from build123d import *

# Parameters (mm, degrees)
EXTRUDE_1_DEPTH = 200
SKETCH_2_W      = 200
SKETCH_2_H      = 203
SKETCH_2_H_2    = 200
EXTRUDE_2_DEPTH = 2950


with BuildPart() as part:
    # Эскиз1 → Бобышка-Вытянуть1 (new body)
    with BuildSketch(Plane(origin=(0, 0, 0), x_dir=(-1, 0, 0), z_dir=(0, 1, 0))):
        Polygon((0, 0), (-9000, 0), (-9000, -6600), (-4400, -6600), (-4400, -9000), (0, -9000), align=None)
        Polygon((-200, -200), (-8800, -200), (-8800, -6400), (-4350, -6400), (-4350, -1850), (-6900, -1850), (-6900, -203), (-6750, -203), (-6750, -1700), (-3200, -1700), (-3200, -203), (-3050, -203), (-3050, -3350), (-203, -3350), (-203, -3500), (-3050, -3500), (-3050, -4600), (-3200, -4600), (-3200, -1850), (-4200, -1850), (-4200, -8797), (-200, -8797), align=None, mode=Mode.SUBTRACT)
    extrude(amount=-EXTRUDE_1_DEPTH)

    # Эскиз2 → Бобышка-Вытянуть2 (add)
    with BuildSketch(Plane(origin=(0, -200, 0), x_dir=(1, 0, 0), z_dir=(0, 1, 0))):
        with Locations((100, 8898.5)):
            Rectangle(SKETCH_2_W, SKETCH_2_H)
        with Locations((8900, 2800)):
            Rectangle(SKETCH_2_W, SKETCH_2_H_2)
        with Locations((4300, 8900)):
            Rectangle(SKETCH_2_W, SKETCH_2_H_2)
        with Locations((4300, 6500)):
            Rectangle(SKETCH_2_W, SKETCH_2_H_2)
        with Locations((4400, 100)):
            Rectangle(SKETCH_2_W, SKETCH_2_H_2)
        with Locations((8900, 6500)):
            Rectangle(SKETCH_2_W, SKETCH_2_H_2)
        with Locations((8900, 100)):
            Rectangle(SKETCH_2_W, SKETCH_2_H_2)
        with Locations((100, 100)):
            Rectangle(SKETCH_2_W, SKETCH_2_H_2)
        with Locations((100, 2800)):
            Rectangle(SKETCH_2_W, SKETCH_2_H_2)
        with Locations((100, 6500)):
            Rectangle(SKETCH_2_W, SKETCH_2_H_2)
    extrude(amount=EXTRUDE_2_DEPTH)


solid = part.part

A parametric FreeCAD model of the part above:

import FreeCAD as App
import Part
import Sketcher


def add_polygon(sketch, points):
    """Adds a closed chain of lines whose ends are joined by coincident constraints."""
    first, n = sketch.GeometryCount, len(points)
    for a, b in zip(points, points[1:] + points[:1]):
        sketch.addGeometry(Part.LineSegment(App.Vector(*a, 0), App.Vector(*b, 0)), False)
    for i in range(n):
        sketch.addConstraint(Sketcher.Constraint("Coincident", first + i, 2, first + (i + 1) % n, 1))

doc = App.newDocument("Part")
params = doc.addObject("Spreadsheet::Sheet", "Params")
for row, (alias, value) in enumerate([
    ("sketch1_width", "9000 mm"),
    ("sketch1_width2", "4600 mm"),
    ("sketch1_width3", "8600 mm"),
    ("sketch1_width4", "4000 mm"),
    ("sketch1_width5", "1000 mm"),
    ("pad1_length", "200 mm"),
    ("sketch2_width", "200 mm"),
    ("sketch2_height", "203 mm"),
    ("pad2_length", "2950 mm"),
], start=1):
    params.set(f"A{row}", alias)
    params.set(f"B{row}", "=" + value)
    params.setAlias(f"B{row}", alias)

body = doc.addObject("PartDesign::Body", "Body")

# Sketch on XZ plane
sketch1 = doc.addObject("Sketcher::SketchObject", "Sketch")
body.addObject(sketch1)
sketch1.AttachmentSupport = (doc.XZ_Plane, [""])
sketch1.MapMode = "FlatFace"
add_polygon(sketch1, [(0, 0), (9000, 0), (9000, -6600), (4400, -6600), (4400, -9000), (0, -9000)])  # lines 0-5
add_polygon(sketch1, [(8800, -200), (200, -200), (200, -8797), (4200, -8797), (4200, -1850), (3200, -1850), (3200, -4600), (3050, -4600), (3050, -3500), (203, -3500), (203, -3350), (3050, -3350), (3050, -203), (3200, -203), (3200, -1700), (6750, -1700), (6750, -203), (6900, -203), (6900, -1850), (4350, -1850), (4350, -6400), (8800, -6400)])  # lines 6-27
sketch1.addConstraint(Sketcher.Constraint("Horizontal", 0))
sketch1.addConstraint(Sketcher.Constraint("Vertical", 1))
sketch1.addConstraint(Sketcher.Constraint("Horizontal", 2))
sketch1.addConstraint(Sketcher.Constraint("Vertical", 3))
sketch1.addConstraint(Sketcher.Constraint("Horizontal", 4))
sketch1.addConstraint(Sketcher.Constraint("Vertical", 5))
sketch1.addConstraint(Sketcher.Constraint("Horizontal", 6))
sketch1.addConstraint(Sketcher.Constraint("Vertical", 7))
sketch1.addConstraint(Sketcher.Constraint("Horizontal", 8))
sketch1.addConstraint(Sketcher.Constraint("Vertical", 9))
sketch1.addConstraint(Sketcher.Constraint("Horizontal", 10))
sketch1.addConstraint(Sketcher.Constraint("Vertical", 11))
sketch1.addConstraint(Sketcher.Constraint("Horizontal", 12))
sketch1.addConstraint(Sketcher.Constraint("Vertical", 13))
sketch1.addConstraint(Sketcher.Constraint("Horizontal", 14))
sketch1.addConstraint(Sketcher.Constraint("Vertical", 15))
sketch1.addConstraint(Sketcher.Constraint("Horizontal", 16))
sketch1.addConstraint(Sketcher.Constraint("Vertical", 17))
sketch1.addConstraint(Sketcher.Constraint("Horizontal", 18))
sketch1.addConstraint(Sketcher.Constraint("Vertical", 19))
sketch1.addConstraint(Sketcher.Constraint("Horizontal", 20))
sketch1.addConstraint(Sketcher.Constraint("Vertical", 21))
sketch1.addConstraint(Sketcher.Constraint("Horizontal", 22))
sketch1.addConstraint(Sketcher.Constraint("Vertical", 23))
sketch1.addConstraint(Sketcher.Constraint("Horizontal", 24))
sketch1.addConstraint(Sketcher.Constraint("Vertical", 25))
sketch1.addConstraint(Sketcher.Constraint("Horizontal", 26))
sketch1.addConstraint(Sketcher.Constraint("Vertical", 27))
sketch1.addConstraint(Sketcher.Constraint("Coincident", 5, 2, -1, 1))
sketch1.addConstraint(Sketcher.Constraint("Horizontal", 18, 2, 21, 2))
sketch1.addConstraint(Sketcher.Constraint("Horizontal", 10, 2, 23, 2))
sketch1.addConstraint(Sketcher.Constraint("Vertical", 13, 2, 16, 2))
sketch1.addConstraint(Sketcher.Constraint("Vertical", 11, 2, 18, 2))
sketch1.addConstraint(Sketcher.Constraint("Equal", 18, 22))
sketch1.addConstraint(Sketcher.Constraint("Equal", 0, 5))
sketch1.addConstraint(Sketcher.Constraint("Equal", 22, 15))
sketch1.addConstraint(Sketcher.Constraint("DistanceX", 0, 1, 0, 2, 9000.0))
sketch1.addConstraint(Sketcher.Constraint("DistanceX", 2, 2, 2, 1, 4600.0))
sketch1.addConstraint(Sketcher.Constraint("DistanceX", 6, 2, 6, 1, 8600.0))
sketch1.addConstraint(Sketcher.Constraint("DistanceX", 8, 1, 8, 2, 4000.0))
sketch1.addConstraint(Sketcher.Constraint("DistanceX", 10, 2, 10, 1, 1000.0))
sketch1.addConstraint(Sketcher.Constraint("DistanceX", 12, 2, 12, 1, 150.0))
sketch1.addConstraint(Sketcher.Constraint("DistanceX", 14, 2, 14, 1, 2847.0))
sketch1.addConstraint(Sketcher.Constraint("DistanceX", 20, 1, 20, 2, 3550.0))
sketch1.addConstraint(Sketcher.Constraint("DistanceX", 24, 2, 24, 1, 2550.0))
sketch1.addConstraint(Sketcher.Constraint("DistanceY", 1, 2, 1, 1, 6600.0))
sketch1.addConstraint(Sketcher.Constraint("DistanceY", 7, 2, 7, 1, 8597.0))
sketch1.addConstraint(Sketcher.Constraint("DistanceY", 9, 1, 9, 2, 6947.0))
sketch1.addConstraint(Sketcher.Constraint("DistanceY", 11, 2, 11, 1, 2750.0))
sketch1.addConstraint(Sketcher.Constraint("DistanceY", 13, 1, 13, 2, 1100.0))
sketch1.addConstraint(Sketcher.Constraint("DistanceY", 17, 1, 17, 2, 3147.0))
sketch1.addConstraint(Sketcher.Constraint("DistanceY", 19, 2, 19, 1, 1497.0))
sketch1.addConstraint(Sketcher.Constraint("DistanceY", 25, 2, 25, 1, 4550.0))
sketch1.addConstraint(Sketcher.Constraint("DistanceX", -1, 1, 6, 2, 200.0))
sketch1.addConstraint(Sketcher.Constraint("DistanceY", 6, 2, -1, 1, 200.0))
sketch1.setExpression("Constraints[64]", "Params.sketch1_width")
sketch1.setExpression("Constraints[65]", "Params.sketch1_width2")
sketch1.setExpression("Constraints[66]", "Params.sketch1_width3")
sketch1.setExpression("Constraints[67]", "Params.sketch1_width4")
sketch1.setExpression("Constraints[68]", "Params.sketch1_width5")
pad1 = doc.addObject("PartDesign::Pad", "Pad")
body.addObject(pad1)
pad1.Profile = sketch1
pad1.setExpression("Length", "Params.pad1_length")

# Sketch on XZ plane
sketch2 = doc.addObject("Sketcher::SketchObject", "Sketch001")
body.addObject(sketch2)
sketch2.AttachmentSupport = (doc.XZ_Plane, [""])
sketch2.MapMode = "FlatFace"
sketch2.AttachmentOffset = App.Placement(App.Vector(0, 0, 200), App.Rotation())
add_polygon(sketch2, [(0, -9000), (0, -8797), (200, -8797), (200, -9000)])  # lines 0-3
add_polygon(sketch2, [(8800, -2900), (8800, -2700), (9000, -2700), (9000, -2900)])  # lines 4-7
add_polygon(sketch2, [(4200, -9000), (4200, -8800), (4400, -8800), (4400, -9000)])  # lines 8-11
add_polygon(sketch2, [(4200, -6600), (4200, -6400), (4400, -6400), (4400, -6600)])  # lines 12-15
add_polygon(sketch2, [(4300, -200), (4300, 0), (4500, 0), (4500, -200)])  # lines 16-19
add_polygon(sketch2, [(8800, -6600), (8800, -6400), (9000, -6400), (9000, -6600)])  # lines 20-23
add_polygon(sketch2, [(8800, -200), (8800, 0), (9000, 0), (9000, -200)])  # lines 24-27
add_polygon(sketch2, [(0, -200), (0, 0), (200, 0), (200, -200)])  # lines 28-31
add_polygon(sketch2, [(0, -2900), (0, -2700), (200, -2700), (200, -2900)])  # lines 32-35
add_polygon(sketch2, [(0, -6600), (0, -6400), (200, -6400), (200, -6600)])  # lines 36-39
sketch2.addConstraint(Sketcher.Constraint("Vertical", 0))
sketch2.addConstraint(Sketcher.Constraint("Horizontal", 1))
sketch2.addConstraint(Sketcher.Constraint("Vertical", 2))
sketch2.addConstraint(Sketcher.Constraint("Horizontal", 3))
sketch2.addConstraint(Sketcher.Constraint("Vertical", 4))
sketch2.addConstraint(Sketcher.Constraint("Horizontal", 5))
sketch2.addConstraint(Sketcher.Constraint("Vertical", 6))
sketch2.addConstraint(Sketcher.Constraint("Horizontal", 7))
sketch2.addConstraint(Sketcher.Constraint("Vertical", 8))
sketch2.addConstraint(Sketcher.Constraint("Horizontal", 9))
sketch2.addConstraint(Sketcher.Constraint("Vertical", 10))
sketch2.addConstraint(Sketcher.Constraint("Horizontal", 11))
sketch2.addConstraint(Sketcher.Constraint("Vertical", 12))
sketch2.addConstraint(Sketcher.Constraint("Horizontal", 13))
sketch2.addConstraint(Sketcher.Constraint("Vertical", 14))
sketch2.addConstraint(Sketcher.Constraint("Horizontal", 15))
sketch2.addConstraint(Sketcher.Constraint("Vertical", 16))
sketch2.addConstraint(Sketcher.Constraint("Horizontal", 17))
sketch2.addConstraint(Sketcher.Constraint("Vertical", 18))
sketch2.addConstraint(Sketcher.Constraint("Horizontal", 19))
sketch2.addConstraint(Sketcher.Constraint("Vertical", 20))
sketch2.addConstraint(Sketcher.Constraint("Horizontal", 21))
sketch2.addConstraint(Sketcher.Constraint("Vertical", 22))
sketch2.addConstraint(Sketcher.Constraint("Horizontal", 23))
sketch2.addConstraint(Sketcher.Constraint("Vertical", 24))
sketch2.addConstraint(Sketcher.Constraint("Horizontal", 25))
sketch2.addConstraint(Sketcher.Constraint("Vertical", 26))
sketch2.addConstraint(Sketcher.Constraint("Horizontal", 27))
sketch2.addConstraint(Sketcher.Constraint("Vertical", 28))
sketch2.addConstraint(Sketcher.Constraint("Horizontal", 29))
sketch2.addConstraint(Sketcher.Constraint("Vertical", 30))
sketch2.addConstraint(Sketcher.Constraint("Horizontal", 31))
sketch2.addConstraint(Sketcher.Constraint("Vertical", 32))
sketch2.addConstraint(Sketcher.Constraint("Horizontal", 33))
sketch2.addConstraint(Sketcher.Constraint("Vertical", 34))
sketch2.addConstraint(Sketcher.Constraint("Horizontal", 35))
sketch2.addConstraint(Sketcher.Constraint("Vertical", 36))
sketch2.addConstraint(Sketcher.Constraint("Horizontal", 37))
sketch2.addConstraint(Sketcher.Constraint("Vertical", 38))
sketch2.addConstraint(Sketcher.Constraint("Horizontal", 39))
sketch2.addConstraint(Sketcher.Constraint("Coincident", 28, 2, -1, 1))
sketch2.addConstraint(Sketcher.Constraint("PointOnObject", 0, 2, -2))
sketch2.addConstraint(Sketcher.Constraint("PointOnObject", 16, 2, -1))
sketch2.addConstraint(Sketcher.Constraint("PointOnObject", 24, 2, -1))
sketch2.addConstraint(Sketcher.Constraint("PointOnObject", 32, 2, -2))
sketch2.addConstraint(Sketcher.Constraint("PointOnObject", 36, 2, -2))
sketch2.addConstraint(Sketcher.Constraint("Horizontal", 3, 2, 10, 2))
sketch2.addConstraint(Sketcher.Constraint("Horizontal", 13, 2, 20, 2))
sketch2.addConstraint(Sketcher.Constraint("Horizontal", 15, 2, 22, 2))
sketch2.addConstraint(Sketcher.Constraint("Horizontal", 19, 2, 26, 2))
sketch2.addConstraint(Sketcher.Constraint("Horizontal", 27, 2, 30, 2))
sketch2.addConstraint(Sketcher.Constraint("Horizontal", 5, 2, 32, 2))
sketch2.addConstraint(Sketcher.Constraint("Horizontal", 7, 2, 34, 2))
sketch2.addConstraint(Sketcher.Constraint("Horizontal", 21, 2, 36, 2))
sketch2.addConstraint(Sketcher.Constraint("Horizontal", 23, 2, 38, 2))
sketch2.addConstraint(Sketcher.Constraint("Vertical", 11, 2, 12, 2))
sketch2.addConstraint(Sketcher.Constraint("Vertical", 10, 2, 13, 2))
sketch2.addConstraint(Sketcher.Constraint("Vertical", 7, 2, 20, 2))
sketch2.addConstraint(Sketcher.Constraint("Vertical", 6, 2, 21, 2))
sketch2.addConstraint(Sketcher.Constraint("Vertical", 23, 2, 24, 2))
sketch2.addConstraint(Sketcher.Constraint("Vertical", 22, 2, 25, 2))
sketch2.addConstraint(Sketcher.Constraint("Vertical", 2, 2, 29, 2))
sketch2.addConstraint(Sketcher.Constraint("Vertical", 30, 2, 33, 2))
sketch2.addConstraint(Sketcher.Constraint("Vertical", 34, 2, 37, 2))
sketch2.addConstraint(Sketcher.Constraint("Equal", 3, 5))
sketch2.addConstraint(Sketcher.Constraint("Equal", 7, 9))
sketch2.addConstraint(Sketcher.Constraint("Equal", 15, 17))
sketch2.addConstraint(Sketcher.Constraint("Equal", 39, 4))
sketch2.addConstraint(Sketcher.Constraint("Equal", 6, 8))
sketch2.addConstraint(Sketcher.Constraint("Equal", 10, 12))
sketch2.addConstraint(Sketcher.Constraint("Equal", 14, 16))
sketch2.addConstraint(Sketcher.Constraint("DistanceX", 1, 1, 1, 2, 200.0))
sketch2.addConstraint(Sketcher.Constraint("DistanceY", 0, 1, 0, 2, 203.0))
sketch2.addConstraint(Sketcher.Constraint("DistanceY", 0, 2, -1, 1, 8797.0))
sketch2.addConstraint(Sketcher.Constraint("DistanceX", -1, 1, 4, 2, 8800.0))
sketch2.addConstraint(Sketcher.Constraint("DistanceY", 4, 2, -1, 1, 2700.0))
sketch2.addConstraint(Sketcher.Constraint("DistanceX", -1, 1, 8, 2, 4200.0))
sketch2.addConstraint(Sketcher.Constraint("DistanceY", 12, 2, -1, 1, 6400.0))
sketch2.addConstraint(Sketcher.Constraint("DistanceX", -1, 1, 16, 2, 4300.0))
sketch2.setExpression("Constraints[111]", "Params.sketch2_width")
sketch2.setExpression("Constraints[112]", "Params.sketch2_height")
pad2 = doc.addObject("PartDesign::Pad", "Pad001")
body.addObject(pad2)
pad2.Profile = sketch2
pad2.setExpression("Length", "Params.pad2_length")
pad2.Reversed = True

doc.recompute()
